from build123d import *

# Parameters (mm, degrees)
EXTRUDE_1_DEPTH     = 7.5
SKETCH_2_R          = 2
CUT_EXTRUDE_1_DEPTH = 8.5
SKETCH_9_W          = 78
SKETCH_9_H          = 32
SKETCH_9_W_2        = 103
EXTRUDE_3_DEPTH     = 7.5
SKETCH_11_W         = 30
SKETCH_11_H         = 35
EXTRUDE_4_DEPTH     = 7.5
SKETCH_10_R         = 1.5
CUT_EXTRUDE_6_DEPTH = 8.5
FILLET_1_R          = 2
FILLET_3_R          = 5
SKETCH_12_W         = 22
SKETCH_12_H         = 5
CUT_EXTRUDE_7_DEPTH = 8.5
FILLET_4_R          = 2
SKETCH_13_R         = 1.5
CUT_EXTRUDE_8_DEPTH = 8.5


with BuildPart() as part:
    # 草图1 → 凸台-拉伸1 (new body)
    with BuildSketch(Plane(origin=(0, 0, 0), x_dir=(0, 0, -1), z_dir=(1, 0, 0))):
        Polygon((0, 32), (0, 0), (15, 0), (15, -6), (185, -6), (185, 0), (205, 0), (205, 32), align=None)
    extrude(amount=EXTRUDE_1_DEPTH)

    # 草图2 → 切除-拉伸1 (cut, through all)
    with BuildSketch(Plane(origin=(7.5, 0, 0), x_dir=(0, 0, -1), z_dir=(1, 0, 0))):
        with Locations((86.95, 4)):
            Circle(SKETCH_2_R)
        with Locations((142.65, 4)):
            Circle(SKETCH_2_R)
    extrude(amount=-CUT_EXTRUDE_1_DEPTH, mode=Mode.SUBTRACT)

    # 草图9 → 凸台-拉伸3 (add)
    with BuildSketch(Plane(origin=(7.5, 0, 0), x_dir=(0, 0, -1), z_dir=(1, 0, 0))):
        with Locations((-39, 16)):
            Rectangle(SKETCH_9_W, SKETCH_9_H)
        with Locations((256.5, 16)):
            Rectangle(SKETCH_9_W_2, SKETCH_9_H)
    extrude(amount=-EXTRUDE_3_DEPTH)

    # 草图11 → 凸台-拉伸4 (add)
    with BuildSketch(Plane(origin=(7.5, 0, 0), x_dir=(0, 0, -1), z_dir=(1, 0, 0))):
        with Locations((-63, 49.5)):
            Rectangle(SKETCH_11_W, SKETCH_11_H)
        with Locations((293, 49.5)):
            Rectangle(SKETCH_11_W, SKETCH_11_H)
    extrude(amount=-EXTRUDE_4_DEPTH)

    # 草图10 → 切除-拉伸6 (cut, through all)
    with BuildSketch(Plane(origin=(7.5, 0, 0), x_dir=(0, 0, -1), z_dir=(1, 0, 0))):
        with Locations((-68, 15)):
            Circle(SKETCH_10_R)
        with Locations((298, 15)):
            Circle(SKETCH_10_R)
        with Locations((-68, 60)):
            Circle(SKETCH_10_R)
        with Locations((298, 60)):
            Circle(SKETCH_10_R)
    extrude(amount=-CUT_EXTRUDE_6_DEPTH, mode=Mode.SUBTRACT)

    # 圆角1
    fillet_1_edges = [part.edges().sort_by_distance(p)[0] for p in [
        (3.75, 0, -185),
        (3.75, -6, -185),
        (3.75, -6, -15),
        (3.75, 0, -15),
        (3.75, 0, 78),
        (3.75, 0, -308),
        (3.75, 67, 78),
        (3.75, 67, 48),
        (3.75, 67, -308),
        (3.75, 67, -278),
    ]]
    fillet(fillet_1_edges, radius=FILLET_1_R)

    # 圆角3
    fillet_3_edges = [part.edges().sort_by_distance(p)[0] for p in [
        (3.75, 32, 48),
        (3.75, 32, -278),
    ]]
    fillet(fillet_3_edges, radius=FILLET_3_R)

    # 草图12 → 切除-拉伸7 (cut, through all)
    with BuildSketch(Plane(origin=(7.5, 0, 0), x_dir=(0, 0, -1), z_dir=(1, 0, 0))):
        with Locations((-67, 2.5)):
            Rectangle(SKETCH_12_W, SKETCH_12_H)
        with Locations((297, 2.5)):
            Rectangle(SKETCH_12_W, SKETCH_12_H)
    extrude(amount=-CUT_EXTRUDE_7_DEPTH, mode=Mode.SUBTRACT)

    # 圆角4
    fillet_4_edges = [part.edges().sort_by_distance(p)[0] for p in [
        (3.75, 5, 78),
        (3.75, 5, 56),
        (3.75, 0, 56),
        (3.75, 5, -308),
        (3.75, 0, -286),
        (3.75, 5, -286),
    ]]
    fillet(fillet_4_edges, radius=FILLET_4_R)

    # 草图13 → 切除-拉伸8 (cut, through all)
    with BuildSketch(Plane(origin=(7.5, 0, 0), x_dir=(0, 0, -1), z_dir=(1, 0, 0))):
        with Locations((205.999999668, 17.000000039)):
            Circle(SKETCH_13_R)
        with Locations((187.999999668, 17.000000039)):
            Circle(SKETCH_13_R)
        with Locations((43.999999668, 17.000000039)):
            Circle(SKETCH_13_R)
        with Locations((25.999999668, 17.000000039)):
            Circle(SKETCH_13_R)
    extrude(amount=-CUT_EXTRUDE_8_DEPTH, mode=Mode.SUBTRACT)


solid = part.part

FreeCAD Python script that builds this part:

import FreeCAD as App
import Part
import Sketcher

V = App.Vector


def edges_at(feature, points):
    """Names of the edges that pass closest to the given points."""
    edges = feature.Shape.Edges
    near = lambda p: min(range(len(edges)), key=lambda i: edges[i].distToShape(Part.Vertex(*p))[0])
    return sorted({f"Edge{near(p) + 1}" for p in points})

doc = App.newDocument("Part")
body = doc.addObject("PartDesign::Body", "Body")

sketch1 = body.newObject("Sketcher::SketchObject", "Sketch")
sketch1.AttachmentSupport = (doc.getObject("YZ_Plane"), [""])
sketch1.MapMode = "FlatFace"
sketch1.addGeometry(Part.LineSegment(V(32, 0, 0), V(0, 0, 0)), False)
sketch1.addGeometry(Part.LineSegment(V(0, 0, 0), V(0, -15, 0)), False)
sketch1.addGeometry(Part.LineSegment(V(0, -15, 0), V(-6, -15, 0)), False)
sketch1.addGeometry(Part.LineSegment(V(-6, -15, 0), V(-6, -185, 0)), False)
sketch1.addGeometry(Part.LineSegment(V(-6, -185, 0), V(0, -185, 0)), False)
sketch1.addGeometry(Part.LineSegment(V(0, -185, 0), V(0, -205, 0)), False)
sketch1.addGeometry(Part.LineSegment(V(0, -205, 0), V(32, -205, 0)), False)
sketch1.addGeometry(Part.LineSegment(V(32, -205, 0), V(32, 0, 0)), False)
sketch1.addConstraint(Sketcher.Constraint("Coincident", 0, 2, 1, 1))
sketch1.addConstraint(Sketcher.Constraint("Coincident", 1, 2, 2, 1))
sketch1.addConstraint(Sketcher.Constraint("Coincident", 2, 2, 3, 1))
sketch1.addConstraint(Sketcher.Constraint("Coincident", 3, 2, 4, 1))
sketch1.addConstraint(Sketcher.Constraint("Coincident", 4, 2, 5, 1))
sketch1.addConstraint(Sketcher.Constraint("Coincident", 5, 2, 6, 1))
sketch1.addConstraint(Sketcher.Constraint("Coincident", 6, 2, 7, 1))
sketch1.addConstraint(Sketcher.Constraint("Coincident", 7, 2, 0, 1))
sketch1.addConstraint(Sketcher.Constraint("Horizontal", 0))
sketch1.addConstraint(Sketcher.Constraint("Vertical", 1))
sketch1.addConstraint(Sketcher.Constraint("Horizontal", 2))
sketch1.addConstraint(Sketcher.Constraint("Vertical", 3))
sketch1.addConstraint(Sketcher.Constraint("Horizontal", 4))
sketch1.addConstraint(Sketcher.Constraint("Vertical", 5))
sketch1.addConstraint(Sketcher.Constraint("Horizontal", 6))
sketch1.addConstraint(Sketcher.Constraint("Vertical", 7))
sketch1.addConstraint(Sketcher.Constraint("Coincident", 0, 2, -1, 1))
sketch1.addConstraint(Sketcher.Constraint("PointOnObject", 4, 2, -2))
sketch1.addConstraint(Sketcher.Constraint("DistanceX", 0, 2, 0, 1, 32.0))
sketch1.addConstraint(Sketcher.Constraint("DistanceX", 2, 2, 2, 1, 6.0))
sketch1.addConstraint(Sketcher.Constraint("DistanceY", 1, 2, 1, 1, 15.0))
sketch1.addConstraint(Sketcher.Constraint("DistanceY", 3, 2, 3, 1, 170.0))
sketch1.addConstraint(Sketcher.Constraint("DistanceY", 5, 2, 5, 1, 20.0))
pad1 = body.newObject("PartDesign::Pad", "Pad")
pad1.Profile = sketch1
pad1.Length = 7.5

sketch2 = body.newObject("Sketcher::SketchObject", "Sketch001")
sketch2.AttachmentSupport = (doc.getObject("YZ_Plane"), [""])
sketch2.MapMode = "FlatFace"
sketch2.AttachmentOffset = App.Placement(V(0, 0, 7.5), App.Rotation())
sketch2.addGeometry(Part.Circle(V(4, -87, 0), V(0, 0, 1), 2), False)
sketch2.addGeometry(Part.Circle(V(4, -142.7, 0), V(0, 0, 1), 2), False)
sketch2.addConstraint(Sketcher.Constraint("Equal", 0, 1))
sketch2.addConstraint(Sketcher.Constraint("Vertical", 0, 3, 1, 3))
sketch2.addConstraint(Sketcher.Constraint("Diameter", 0, 4.0))
sketch2.addConstraint(Sketcher.Constraint("DistanceX", -1, 1, 0, 3, 4.0))
sketch2.addConstraint(Sketcher.Constraint("DistanceY", 1, 3, 0, 3, 55.7))
sketch2.addConstraint(Sketcher.Constraint("DistanceY", 0, 3, -1, 1, 86.95))
pocket1 = body.newObject("PartDesign::Pocket", "Pocket")
pocket1.Profile = sketch2
pocket1.Type = "ThroughAll"

sketch3 = body.newObject("Sketcher::SketchObject", "Sketch002")
sketch3.AttachmentSupport = (doc.getObject("YZ_Plane"), [""])
sketch3.MapMode = "FlatFace"
sketch3.AttachmentOffset = App.Placement(V(0, 0, 7.5), App.Rotation())
sketch3.addGeometry(Part.LineSegment(V(32, 78, 0), V(0, 78, 0)), False)
sketch3.addGeometry(Part.LineSegment(V(0, 78, 0), V(0, 0, 0)), False)
sketch3.addGeometry(Part.LineSegment(V(0, 0, 0), V(32, 0, 0)), False)
sketch3.addGeometry(Part.LineSegment(V(32, 0, 0), V(32, 78, 0)), False)
sketch3.addGeometry(Part.LineSegment(V(32, -205, 0), V(0, -205, 0)), False)
sketch3.addGeometry(Part.LineSegment(V(0, -205, 0), V(0, -308, 0)), False)
sketch3.addGeometry(Part.LineSegment(V(0, -308, 0), V(32, -308, 0)), False)
sketch3.addGeometry(Part.LineSegment(V(32, -308, 0), V(32, -205, 0)), False)
sketch3.addConstraint(Sketcher.Constraint("Coincident", 0, 2, 1, 1))
sketch3.addConstraint(Sketcher.Constraint("Coincident", 1, 2, 2, 1))
sketch3.addConstraint(Sketcher.Constraint("Coincident", 2, 2, 3, 1))
sketch3.addConstraint(Sketcher.Constraint("Coincident", 3, 2, 0, 1))
sketch3.addConstraint(Sketcher.Constraint("Coincident", 4, 2, 5, 1))
sketch3.addConstraint(Sketcher.Constraint("Coincident", 5, 2, 6, 1))
sketch3.addConstraint(Sketcher.Constraint("Coincident", 6, 2, 7, 1))
sketch3.addConstraint(Sketcher.Constraint("Coincident", 7, 2, 4, 1))
sketch3.addConstraint(Sketcher.Constraint("Horizontal", 0))
sketch3.addConstraint(Sketcher.Constraint("Vertical", 1))
sketch3.addConstraint(Sketcher.Constraint("Horizontal", 2))
sketch3.addConstraint(Sketcher.Constraint("Vertical", 3))
sketch3.addConstraint(Sketcher.Constraint("Horizontal", 4))
sketch3.addConstraint(Sketcher.Constraint("Vertical", 5))
sketch3.addConstraint(Sketcher.Constraint("Horizontal", 6))
sketch3.addConstraint(Sketcher.Constraint("Vertical", 7))
sketch3.addConstraint(Sketcher.Constraint("Coincident", 1, 2, -1, 1))
sketch3.addConstraint(Sketcher.Constraint("PointOnObject", 4, 2, -2))
sketch3.addConstraint(Sketcher.Constraint("Vertical", 3, 2, 6, 2))
sketch3.addConstraint(Sketcher.Constraint("DistanceX", 0, 2, 0, 1, 32.0))
sketch3.addConstraint(Sketcher.Constraint("DistanceY", 1, 2, 1, 1, 78.0))
sketch3.addConstraint(Sketcher.Constraint("DistanceY", 5, 2, 5, 1, 103.0))
sketch3.addConstraint(Sketcher.Constraint("DistanceY", 4, 2, -1, 1, 205.0))
pad2 = body.newObject("PartDesign::Pad", "Pad001")
pad2.Profile = sketch3
pad2.Length = 7.5
pad2.Reversed = True

sketch4 = body.newObject("Sketcher::SketchObject", "Sketch003")
sketch4.AttachmentSupport = (doc.getObject("YZ_Plane"), [""])
sketch4.MapMode = "FlatFace"
sketch4.AttachmentOffset = App.Placement(V(0, 0, 7.5), App.Rotation())
sketch4.addGeometry(Part.LineSegment(V(67, 78, 0), V(32, 78, 0)), False)
sketch4.addGeometry(Part.LineSegment(V(32, 78, 0), V(32, 48, 0)), False)
sketch4.addGeometry(Part.LineSegment(V(32, 48, 0), V(67, 48, 0)), False)
sketch4.addGeometry(Part.LineSegment(V(67, 48, 0), V(67, 78, 0)), False)
sketch4.addGeometry(Part.LineSegment(V(67, -278, 0), V(32, -278, 0)), False)
sketch4.addGeometry(Part.LineSegment(V(32, -278, 0), V(32, -308, 0)), False)
sketch4.addGeometry(Part.LineSegment(V(32, -308, 0), V(67, -308, 0)), False)
sketch4.addGeometry(Part.LineSegment(V(67, -308, 0), V(67, -278, 0)), False)
sketch4.addConstraint(Sketcher.Constraint("Coincident", 0, 2, 1, 1))
sketch4.addConstraint(Sketcher.Constraint("Coincident", 1, 2, 2, 1))
sketch4.addConstraint(Sketcher.Constraint("Coincident", 2, 2, 3, 1))
sketch4.addConstraint(Sketcher.Constraint("Coincident", 3, 2, 0, 1))
sketch4.addConstraint(Sketcher.Constraint("Coincident", 4, 2, 5, 1))
sketch4.addConstraint(Sketcher.Constraint("Coincident", 5, 2, 6, 1))
sketch4.addConstraint(Sketcher.Constraint("Coincident", 6, 2, 7, 1))
sketch4.addConstraint(Sketcher.Constraint("Coincident", 7, 2, 4, 1))
sketch4.addConstraint(Sketcher.Constraint("Horizontal", 0))
sketch4.addConstraint(Sketcher.Constraint("Vertical", 1))
sketch4.addConstraint(Sketcher.Constraint("Horizontal", 2))
sketch4.addConstraint(Sketcher.Constraint("Vertical", 3))
sketch4.addConstraint(Sketcher.Constraint("Horizontal", 4))
sketch4.addConstraint(Sketcher.Constraint("Vertical", 5))
sketch4.addConstraint(Sketcher.Constraint("Horizontal", 6))
sketch4.addConstraint(Sketcher.Constraint("Vertical", 7))
sketch4.addConstraint(Sketcher.Constraint("Vertical", 1, 2, 4, 2))
sketch4.addConstraint(Sketcher.Constraint("Vertical", 3, 2, 6, 2))
sketch4.addConstraint(Sketcher.Constraint("Equal", 3, 5))
sketch4.addConstraint(Sketcher.Constraint("DistanceX", 0, 2, 0, 1, 35.0))
sketch4.addConstraint(Sketcher.Constraint("DistanceY", 1, 2, 1, 1, 30.0))
sketch4.addConstraint(Sketcher.Constraint("DistanceX", -1, 1, 0, 2, 32.0))
sketch4.addConstraint(Sketcher.Constraint("DistanceY", -1, 1, 0, 2, 78.0))
sketch4.addConstraint(Sketcher.Constraint("DistanceY", 4, 2, -1, 1, 278.0))
pad3 = body.newObject("PartDesign::Pad", "Pad002")
pad3.Profile = sketch4
pad3.Length = 7.5
pad3.Reversed = True

sketch5 = body.newObject("Sketcher::SketchObject", "Sketch004")
sketch5.AttachmentSupport = (doc.getObject("YZ_Plane"), [""])
sketch5.MapMode = "FlatFace"
sketch5.AttachmentOffset = App.Placement(V(0, 0, 7.5), App.Rotation())
sketch5.addGeometry(Part.Circle(V(15, 68, 0), V(0, 0, 1), 1.5), False)
sketch5.addGeometry(Part.Circle(V(15, -298, 0), V(0, 0, 1), 1.5), False)
sketch5.addGeometry(Part.Circle(V(60, 68, 0), V(0, 0, 1), 1.5), False)
sketch5.addGeometry(Part.Circle(V(60, -298, 0), V(0, 0, 1), 1.5), False)
sketch5.addConstraint(Sketcher.Constraint("Equal", 0, 1))
sketch5.addConstraint(Sketcher.Constraint("Equal", 1, 2))
sketch5.addConstraint(Sketcher.Constraint("Equal", 2, 3))
sketch5.addConstraint(Sketcher.Constraint("Horizontal", 0, 3, 2, 3))
sketch5.addConstraint(Sketcher.Constraint("Horizontal", 1, 3, 3, 3))
sketch5.addConstraint(Sketcher.Constraint("Vertical", 0, 3, 1, 3))
sketch5.addConstraint(Sketcher.Constraint("Vertical", 2, 3, 3, 3))
sketch5.addConstraint(Sketcher.Constraint("Diameter", 0, 3.0))
sketch5.addConstraint(Sketcher.Constraint("DistanceX", -1, 1, 0, 3, 15.0))
sketch5.addConstraint(Sketcher.Constraint("DistanceY", -1, 1, 0, 3, 68.0))
sketch5.addConstraint(Sketcher.Constraint("DistanceY", 1, 3, -1, 1, 298.0))
sketch5.addConstraint(Sketcher.Constraint("DistanceX", -1, 1, 2, 3, 60.0))
pocket2 = body.newObject("PartDesign::Pocket", "Pocket001")
pocket2.Profile = sketch5
pocket2.Type = "ThroughAll"
doc.recompute()

fillet = body.newObject("PartDesign::Fillet", "Fillet")
fillet.Base = (pocket2, edges_at(pocket2, [
    (3.75, 0, -185),
    (3.75, -6, -185),
    (3.75, -6, -15),
    (3.75, 0, -15),
    (3.75, 0, 78),
    (3.75, 0, -308),
    (3.75, 67, 78),
    (3.75, 67, 48),
    (3.75, 67, -308),
    (3.75, 67, -278),
]))
fillet.Radius = 2
doc.recompute()

fillet2 = body.newObject("PartDesign::Fillet", "Fillet001")
fillet2.Base = (fillet, edges_at(fillet, [(3.75, 32, 48), (3.75, 32, -278)]))
fillet2.Radius = 5

sketch6 = body.newObject("Sketcher::SketchObject", "Sketch005")
sketch6.AttachmentSupport = (doc.getObject("YZ_Plane"), [""])
sketch6.MapMode = "FlatFace"
sketch6.AttachmentOffset = App.Placement(V(0, 0, 7.5), App.Rotation())
sketch6.addGeometry(Part.LineSegment(V(5, 78, 0), V(0, 78, 0)), False)
sketch6.addGeometry(Part.LineSegment(V(0, 78, 0), V(0, 56, 0)), False)
sketch6.addGeometry(Part.LineSegment(V(0, 56, 0), V(5, 56, 0)), False)
sketch6.addGeometry(Part.LineSegment(V(5, 56, 0), V(5, 78, 0)), False)
sketch6.addGeometry(Part.LineSegment(V(5, -286, 0), V(0, -286, 0)), False)
sketch6.addGeometry(Part.LineSegment(V(0, -286, 0), V(0, -308, 0)), False)
sketch6.addGeometry(Part.LineSegment(V(0, -308, 0), V(5, -308, 0)), False)
sketch6.addGeometry(Part.LineSegment(V(5, -308, 0), V(5, -286, 0)), False)
sketch6.addConstraint(Sketcher.Constraint("Coincident", 0, 2, 1, 1))
sketch6.addConstraint(Sketcher.Constraint("Coincident", 1, 2, 2, 1))
sketch6.addConstraint(Sketcher.Constraint("Coincident", 2, 2, 3, 1))
sketch6.addConstraint(Sketcher.Constraint("Coincident", 3, 2, 0, 1))
sketch6.addConstraint(Sketcher.Constraint("Coincident", 4, 2, 5, 1))
sketch6.addConstraint(Sketcher.Constraint("Coincident", 5, 2, 6, 1))
sketch6.addConstraint(Sketcher.Constraint("Coincident", 6, 2, 7, 1))
sketch6.addConstraint(Sketcher.Constraint("Coincident", 7, 2, 4, 1))
sketch6.addConstraint(Sketcher.Constraint("Horizontal", 0))
sketch6.addConstraint(Sketcher.Constraint("Vertical", 1))
sketch6.addConstraint(Sketcher.Constraint("Horizontal", 2))
sketch6.addConstraint(Sketcher.Constraint("Vertical", 3))
sketch6.addConstraint(Sketcher.Constraint("Horizontal", 4))
sketch6.addConstraint(Sketcher.Constraint("Vertical", 5))
sketch6.addConstraint(Sketcher.Constraint("Horizontal", 6))
sketch6.addConstraint(Sketcher.Constraint("Vertical", 7))
sketch6.addConstraint(Sketcher.Constraint("PointOnObject", 0, 2, -2))
sketch6.addConstraint(Sketcher.Constraint("PointOnObject", 4, 2, -2))
sketch6.addConstraint(Sketcher.Constraint("Vertical", 3, 2, 6, 2))
sketch6.addConstraint(Sketcher.Constraint("Equal", 3, 5))
sketch6.addConstraint(Sketcher.Constraint("DistanceX", 0, 2, 0, 1, 5.0))
sketch6.addConstraint(Sketcher.Constraint("DistanceY", 1, 2, 1, 1, 22.0))
sketch6.addConstraint(Sketcher.Constraint("DistanceY", -1, 1, 0, 2, 78.0))
sketch6.addConstraint(Sketcher.Constraint("DistanceY", 4, 2, -1, 1, 286.0))
pocket3 = body.newObject("PartDesign::Pocket", "Pocket002")
pocket3.Profile = sketch6
pocket3.Type = "ThroughAll"
doc.recompute()

fillet3 = body.newObject("PartDesign::Fillet", "Fillet002")
fillet3.Base = (pocket3, edges_at(pocket3, [
    (3.75, 5, 78),
    (3.75, 5, 56),
    (3.75, 0, 56),
    (3.75, 5, -308),
    (3.75, 0, -286),
    (3.75, 5, -286),
]))
fillet3.Radius = 2

sketch7 = body.newObject("Sketcher::SketchObject", "Sketch006")
sketch7.AttachmentSupport = (doc.getObject("YZ_Plane"), [""])
sketch7.MapMode = "FlatFace"
sketch7.AttachmentOffset = App.Placement(V(0, 0, 7.5), App.Rotation())
sketch7.addGeometry(Part.Circle(V(17, -206, 0), V(0, 0, 1), 1.5), False)
sketch7.addGeometry(Part.Circle(V(17, -188, 0), V(0, 0, 1), 1.5), False)
sketch7.addGeometry(Part.Circle(V(17, -44, 0), V(0, 0, 1), 1.5), False)
sketch7.addGeometry(Part.Circle(V(17, -26, 0), V(0, 0, 1), 1.5), False)
sketch7.addConstraint(Sketcher.Constraint("Equal", 0, 1))
sketch7.addConstraint(Sketcher.Constraint("Equal", 1, 2))
sketch7.addConstraint(Sketcher.Constraint("Equal", 2, 3))
sketch7.addConstraint(Sketcher.Constraint("Vertical", 0, 3, 1, 3))
sketch7.addConstraint(Sketcher.Constraint("Vertical", 1, 3, 2, 3))
sketch7.addConstraint(Sketcher.Constraint("Vertical", 2, 3, 3, 3))
sketch7.addConstraint(Sketcher.Constraint("Diameter", 0, 3.0))
sketch7.addConstraint(Sketcher.Constraint("DistanceX", -1, 1, 0, 3, 17.0))
sketch7.addConstraint(Sketcher.Constraint("DistanceY", 0, 3, -1, 1, 206.0))
sketch7.addConstraint(Sketcher.Constraint("DistanceY", 1, 3, -1, 1, 188.0))
sketch7.addConstraint(Sketcher.Constraint("DistanceY", 2, 3, -1, 1, 44.0))
sketch7.addConstraint(Sketcher.Constraint("DistanceY", 3, 3, -1, 1, 26.0))
pocket4 = body.newObject("PartDesign::Pocket", "Pocket003")
pocket4.Profile = sketch7
pocket4.Type = "ThroughAll"

doc.recompute()
